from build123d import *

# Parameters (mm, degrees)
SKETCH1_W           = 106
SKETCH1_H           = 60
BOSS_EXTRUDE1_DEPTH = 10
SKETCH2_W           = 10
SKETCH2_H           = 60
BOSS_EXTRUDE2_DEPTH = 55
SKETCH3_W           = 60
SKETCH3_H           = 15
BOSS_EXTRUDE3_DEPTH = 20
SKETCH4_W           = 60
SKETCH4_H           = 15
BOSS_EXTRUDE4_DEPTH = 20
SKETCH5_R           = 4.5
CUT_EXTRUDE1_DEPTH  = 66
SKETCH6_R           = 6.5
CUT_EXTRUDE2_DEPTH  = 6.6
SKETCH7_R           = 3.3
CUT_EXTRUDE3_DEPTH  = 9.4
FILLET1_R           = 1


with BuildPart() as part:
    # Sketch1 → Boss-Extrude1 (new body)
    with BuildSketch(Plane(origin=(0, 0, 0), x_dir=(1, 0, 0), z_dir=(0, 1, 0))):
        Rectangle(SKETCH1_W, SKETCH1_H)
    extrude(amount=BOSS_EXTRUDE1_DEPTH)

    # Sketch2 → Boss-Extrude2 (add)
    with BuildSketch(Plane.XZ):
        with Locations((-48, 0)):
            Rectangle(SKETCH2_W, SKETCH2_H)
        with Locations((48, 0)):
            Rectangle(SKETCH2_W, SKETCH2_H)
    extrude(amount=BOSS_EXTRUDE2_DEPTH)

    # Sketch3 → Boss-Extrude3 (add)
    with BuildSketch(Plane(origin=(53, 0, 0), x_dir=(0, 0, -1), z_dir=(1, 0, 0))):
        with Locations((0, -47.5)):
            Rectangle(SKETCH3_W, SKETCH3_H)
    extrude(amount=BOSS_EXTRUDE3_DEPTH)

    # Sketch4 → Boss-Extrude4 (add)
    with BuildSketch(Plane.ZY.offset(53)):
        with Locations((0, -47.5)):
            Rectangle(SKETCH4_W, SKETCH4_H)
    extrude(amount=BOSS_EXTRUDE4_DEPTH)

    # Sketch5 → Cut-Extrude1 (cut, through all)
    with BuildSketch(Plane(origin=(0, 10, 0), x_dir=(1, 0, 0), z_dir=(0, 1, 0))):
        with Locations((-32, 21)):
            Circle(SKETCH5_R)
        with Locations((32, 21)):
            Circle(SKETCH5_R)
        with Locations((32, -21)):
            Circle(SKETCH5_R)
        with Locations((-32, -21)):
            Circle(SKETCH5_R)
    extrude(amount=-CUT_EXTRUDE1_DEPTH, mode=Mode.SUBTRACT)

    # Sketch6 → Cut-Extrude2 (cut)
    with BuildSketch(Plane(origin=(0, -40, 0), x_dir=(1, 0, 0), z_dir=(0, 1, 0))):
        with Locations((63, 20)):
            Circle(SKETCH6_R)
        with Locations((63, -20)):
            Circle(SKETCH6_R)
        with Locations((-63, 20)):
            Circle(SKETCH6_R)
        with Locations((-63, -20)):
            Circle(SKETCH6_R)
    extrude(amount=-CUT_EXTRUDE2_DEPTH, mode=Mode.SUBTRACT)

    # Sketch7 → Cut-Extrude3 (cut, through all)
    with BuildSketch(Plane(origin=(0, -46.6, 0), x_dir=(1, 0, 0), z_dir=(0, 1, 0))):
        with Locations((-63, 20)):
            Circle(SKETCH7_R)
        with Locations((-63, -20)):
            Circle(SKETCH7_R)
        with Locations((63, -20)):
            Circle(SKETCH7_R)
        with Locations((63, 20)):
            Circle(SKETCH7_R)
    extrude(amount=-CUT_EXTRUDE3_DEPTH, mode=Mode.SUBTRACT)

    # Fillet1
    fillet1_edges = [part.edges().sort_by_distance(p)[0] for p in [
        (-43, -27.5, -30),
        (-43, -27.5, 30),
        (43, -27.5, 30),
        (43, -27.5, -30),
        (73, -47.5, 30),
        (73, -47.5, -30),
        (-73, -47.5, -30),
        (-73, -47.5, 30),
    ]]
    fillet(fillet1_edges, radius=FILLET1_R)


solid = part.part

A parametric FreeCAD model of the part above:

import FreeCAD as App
import Part
import Sketcher


def edges_at(feature, points):
    """Names of the edges that pass closest to the given points."""
    edges = feature.Shape.Edges
    near = lambda p: min(range(len(edges)), key=lambda i: edges[i].distToShape(Part.Vertex(*p))[0])
    return sorted({f"Edge{near(p) + 1}" for p in points})


def add_polygon(sketch, points):
    """Adds a closed chain of lines whose ends are joined by coincident constraints."""
    first, n = sketch.GeometryCount, len(points)
    for a, b in zip(points, points[1:] + points[:1]):
        sketch.addGeometry(Part.LineSegment(App.Vector(*a, 0), App.Vector(*b, 0)), False)
    for i in range(n):
        sketch.addConstraint(Sketcher.Constraint("Coincident", first + i, 2, first + (i + 1) % n, 1))

doc = App.newDocument("Part")
body = doc.addObject("PartDesign::Body", "Body")

sketch1 = body.newObject("Sketcher::SketchObject", "Sketch")
sketch1.AttachmentSupport = (doc.getObject("XZ_Plane"), [""])
sketch1.MapMode = "FlatFace"
add_polygon(sketch1, [(-53, -30), (-53, 30), (53, 30), (53, -30)])
sketch1.addConstraint([
    Sketcher.Constraint("Vertical", 0),
    Sketcher.Constraint("Horizontal", 1),
    Sketcher.Constraint("Vertical", 2),
    Sketcher.Constraint("Horizontal", 3),
    Sketcher.Constraint("Symmetric", 0, 2, 2, 2, -1, 1),
    Sketcher.Constraint("DistanceX", 1, 1, 1, 2, 106.0),
    Sketcher.Constraint("DistanceY", 0, 1, 0, 2, 60.0),
])
pad1 = body.newObject("PartDesign::Pad", "Pad")
pad1.Profile = sketch1
pad1.Length = 10
pad1.Reversed = True

sketch2 = body.newObject("Sketcher::SketchObject", "Sketch001")
sketch2.AttachmentSupport = (doc.getObject("XZ_Plane"), [""])
sketch2.MapMode = "FlatFace"
add_polygon(sketch2, [(-53, 30), (-53, -30), (-43, -30), (-43, 30)])
add_polygon(sketch2, [(43, 30), (43, -30), (53, -30), (53, 30)])
sketch2.addConstraint([
    Sketcher.Constraint("Vertical", 0),
    Sketcher.Constraint("Horizontal", 1),
    Sketcher.Constraint("Vertical", 2),
    Sketcher.Constraint("Horizontal", 3),
    Sketcher.Constraint("Vertical", 4),
    Sketcher.Constraint("Horizontal", 5),
    Sketcher.Constraint("Vertical", 6),
    Sketcher.Constraint("Horizontal", 7),
    Sketcher.Constraint("Symmetric", 2, 2, 4, 2, -1, 1),
    Sketcher.Constraint("Symmetric", 0, 2, 6, 2, -1, 1),
    Sketcher.Constraint("Horizontal", 1, 2, 4, 2),
    Sketcher.Constraint("DistanceX", 1, 1, 1, 2, 10.0),
    Sketcher.Constraint("DistanceY", 0, 2, 0, 1, 60.0),
    Sketcher.Constraint("DistanceX", 0, 2, -1, 1, 53.0),
])
pad2 = body.newObject("PartDesign::Pad", "Pad001")
pad2.Profile = sketch2
pad2.Length = 55

sketch3 = body.newObject("Sketcher::SketchObject", "Sketch002")
sketch3.AttachmentSupport = (doc.getObject("YZ_Plane"), [""])
sketch3.MapMode = "FlatFace"
sketch3.AttachmentOffset = App.Placement(App.Vector(0, 0, 53), App.Rotation())
add_polygon(sketch3, [(-40, 30), (-55, 30), (-55, -30), (-40, -30)])
sketch3.addConstraint([
    Sketcher.Constraint("Horizontal", 0),
    Sketcher.Constraint("Vertical", 1),
    Sketcher.Constraint("Horizontal", 2),
    Sketcher.Constraint("Vertical", 3),
    Sketcher.Constraint("DistanceX", 0, 2, 0, 1, 15.0),
    Sketcher.Constraint("DistanceY", 1, 2, 1, 1, 60.0),
    Sketcher.Constraint("DistanceX", 0, 2, -1, 1, 55.0),
    Sketcher.Constraint("DistanceY", -1, 1, 0, 2, 30.0),
])
pad3 = body.newObject("PartDesign::Pad", "Pad002")
pad3.Profile = sketch3
pad3.Length = 20

sketch4 = body.newObject("Sketcher::SketchObject", "Sketch003")
sketch4.AttachmentSupport = (doc.getObject("YZ_Plane"), [""])
sketch4.MapMode = "FlatFace"
sketch4.AttachmentOffset = App.Placement(App.Vector(0, 0, -53), App.Rotation())
add_polygon(sketch4, [(-40, -30), (-55, -30), (-55, 30), (-40, 30)])
sketch4.addConstraint([
    Sketcher.Constraint("Horizontal", 0),
    Sketcher.Constraint("Vertical", 1),
    Sketcher.Constraint("Horizontal", 2),
    Sketcher.Constraint("Vertical", 3),
    Sketcher.Constraint("DistanceX", 0, 2, 0, 1, 15.0),
    Sketcher.Constraint("DistanceY", 1, 1, 1, 2, 60.0),
    Sketcher.Constraint("DistanceX", 0, 2, -1, 1, 55.0),
    Sketcher.Constraint("DistanceY", 0, 2, -1, 1, 30.0),
])
pad4 = body.newObject("PartDesign::Pad", "Pad003")
pad4.Profile = sketch4
pad4.Length = 20
pad4.Reversed = True

sketch5 = body.newObject("Sketcher::SketchObject", "Sketch004")
sketch5.AttachmentSupport = (doc.getObject("XZ_Plane"), [""])
sketch5.MapMode = "FlatFace"
sketch5.AttachmentOffset = App.Placement(App.Vector(0, 0, -10), App.Rotation())
sketch5.addGeometry([
    Part.Circle(App.Vector(-32, -21, 0), App.Vector(0, 0, 1), 4.5),
    Part.Circle(App.Vector(32, -21, 0), App.Vector(0, 0, 1), 4.5),
    Part.Circle(App.Vector(32, 21, 0), App.Vector(0, 0, 1), 4.5),
    Part.Circle(App.Vector(-32, 21, 0), App.Vector(0, 0, 1), 4.5),
], False)
sketch5.addConstraint([
    Sketcher.Constraint("Equal", 0, 1),
    Sketcher.Constraint("Equal", 1, 2),
    Sketcher.Constraint("Equal", 2, 3),
    Sketcher.Constraint("Symmetric", 0, 3, 2, 3, -1, 1),
    Sketcher.Constraint("Symmetric", 1, 3, 3, 3, -1, 1),
    Sketcher.Constraint("Symmetric", 0, 3, 1, 3, -2),
    Sketcher.Constraint("Diameter", 0, 9.0),
    Sketcher.Constraint("DistanceX", 0, 3, -1, 1, 32.0),
    Sketcher.Constraint("DistanceY", 0, 3, -1, 1, 21.0),
])
pocket1 = body.newObject("PartDesign::Pocket", "Pocket")
pocket1.Profile = sketch5
pocket1.Type = "ThroughAll"
pocket1.Reversed = True

sketch6 = body.newObject("Sketcher::SketchObject", "Sketch005")
sketch6.AttachmentSupport = (doc.getObject("XZ_Plane"), [""])
sketch6.MapMode = "FlatFace"
sketch6.AttachmentOffset = App.Placement(App.Vector(0, 0, 40), App.Rotation())
sketch6.addGeometry([
    Part.Circle(App.Vector(63, -20, 0), App.Vector(0, 0, 1), 6),
    Part.Circle(App.Vector(63, 20, 0), App.Vector(0, 0, 1), 6),
    Part.Circle(App.Vector(-63, -20, 0), App.Vector(0, 0, 1), 6),
    Part.Circle(App.Vector(-63, 20, 0), App.Vector(0, 0, 1), 6),
], False)
sketch6.addConstraint([
    Sketcher.Constraint("Equal", 0, 1),
    Sketcher.Constraint("Equal", 1, 2),
    Sketcher.Constraint("Equal", 2, 3),
    Sketcher.Constraint("Symmetric", 1, 3, 2, 3, -1, 1),
    Sketcher.Constraint("Symmetric", 0, 3, 3, 3, -1, 1),
    Sketcher.Constraint("Symmetric", 0, 3, 2, 3, -2),
    Sketcher.Constraint("Diameter", 0, 13.0),
    Sketcher.Constraint("DistanceX", -1, 1, 0, 3, 63.0),
    Sketcher.Constraint("DistanceY", 0, 3, -1, 1, 20.0),
])
pocket2 = body.newObject("PartDesign::Pocket", "Pocket001")
pocket2.Profile = sketch6
pocket2.Length = 6.6
pocket2.Reversed = True

sketch7 = body.newObject("Sketcher::SketchObject", "Sketch006")
sketch7.AttachmentSupport = (doc.getObject("XZ_Plane"), [""])
sketch7.MapMode = "FlatFace"
sketch7.AttachmentOffset = App.Placement(App.Vector(0, 0, 46.6), App.Rotation())
sketch7.addGeometry([
    Part.Circle(App.Vector(-63, -20, 0), App.Vector(0, 0, 1), 3.3),
    Part.Circle(App.Vector(-63, 20, 0), App.Vector(0, 0, 1), 3.3),
    Part.Circle(App.Vector(63, 20, 0), App.Vector(0, 0, 1), 3.3),
    Part.Circle(App.Vector(63, -20, 0), App.Vector(0, 0, 1), 3.3),
], False)
sketch7.addConstraint([
    Sketcher.Constraint("Equal", 0, 1),
    Sketcher.Constraint("Equal", 1, 2),
    Sketcher.Constraint("Equal", 2, 3),
    Sketcher.Constraint("Symmetric", 0, 3, 2, 3, -1, 1),
    Sketcher.Constraint("Symmetric", 1, 3, 3, 3, -1, 1),
    Sketcher.Constraint("Symmetric", 1, 3, 2, 3, -2),
    Sketcher.Constraint("Diameter", 0, 6.6),
    Sketcher.Constraint("DistanceX", 0, 3, -1, 1, 63.0),
    Sketcher.Constraint("DistanceY", 0, 3, -1, 1, 20.0),
])
pocket3 = body.newObject("PartDesign::Pocket", "Pocket002")
pocket3.Profile = sketch7
pocket3.Type = "ThroughAll"
pocket3.Reversed = True
doc.recompute()

fillet = body.newObject("PartDesign::Fillet", "Fillet")
fillet.Base = (pocket3, edges_at(pocket3, [
    (-43, -27.5, -30),
    (-43, -27.5, 30),
    (43, -27.5, 30),
    (43, -27.5, -30),
    (73, -47.5, 30),
    (73, -47.5, -30),
    (-73, -47.5, -30),
    (-73, -47.5, 30),
]))
fillet.Radius = 1

doc.recompute()
